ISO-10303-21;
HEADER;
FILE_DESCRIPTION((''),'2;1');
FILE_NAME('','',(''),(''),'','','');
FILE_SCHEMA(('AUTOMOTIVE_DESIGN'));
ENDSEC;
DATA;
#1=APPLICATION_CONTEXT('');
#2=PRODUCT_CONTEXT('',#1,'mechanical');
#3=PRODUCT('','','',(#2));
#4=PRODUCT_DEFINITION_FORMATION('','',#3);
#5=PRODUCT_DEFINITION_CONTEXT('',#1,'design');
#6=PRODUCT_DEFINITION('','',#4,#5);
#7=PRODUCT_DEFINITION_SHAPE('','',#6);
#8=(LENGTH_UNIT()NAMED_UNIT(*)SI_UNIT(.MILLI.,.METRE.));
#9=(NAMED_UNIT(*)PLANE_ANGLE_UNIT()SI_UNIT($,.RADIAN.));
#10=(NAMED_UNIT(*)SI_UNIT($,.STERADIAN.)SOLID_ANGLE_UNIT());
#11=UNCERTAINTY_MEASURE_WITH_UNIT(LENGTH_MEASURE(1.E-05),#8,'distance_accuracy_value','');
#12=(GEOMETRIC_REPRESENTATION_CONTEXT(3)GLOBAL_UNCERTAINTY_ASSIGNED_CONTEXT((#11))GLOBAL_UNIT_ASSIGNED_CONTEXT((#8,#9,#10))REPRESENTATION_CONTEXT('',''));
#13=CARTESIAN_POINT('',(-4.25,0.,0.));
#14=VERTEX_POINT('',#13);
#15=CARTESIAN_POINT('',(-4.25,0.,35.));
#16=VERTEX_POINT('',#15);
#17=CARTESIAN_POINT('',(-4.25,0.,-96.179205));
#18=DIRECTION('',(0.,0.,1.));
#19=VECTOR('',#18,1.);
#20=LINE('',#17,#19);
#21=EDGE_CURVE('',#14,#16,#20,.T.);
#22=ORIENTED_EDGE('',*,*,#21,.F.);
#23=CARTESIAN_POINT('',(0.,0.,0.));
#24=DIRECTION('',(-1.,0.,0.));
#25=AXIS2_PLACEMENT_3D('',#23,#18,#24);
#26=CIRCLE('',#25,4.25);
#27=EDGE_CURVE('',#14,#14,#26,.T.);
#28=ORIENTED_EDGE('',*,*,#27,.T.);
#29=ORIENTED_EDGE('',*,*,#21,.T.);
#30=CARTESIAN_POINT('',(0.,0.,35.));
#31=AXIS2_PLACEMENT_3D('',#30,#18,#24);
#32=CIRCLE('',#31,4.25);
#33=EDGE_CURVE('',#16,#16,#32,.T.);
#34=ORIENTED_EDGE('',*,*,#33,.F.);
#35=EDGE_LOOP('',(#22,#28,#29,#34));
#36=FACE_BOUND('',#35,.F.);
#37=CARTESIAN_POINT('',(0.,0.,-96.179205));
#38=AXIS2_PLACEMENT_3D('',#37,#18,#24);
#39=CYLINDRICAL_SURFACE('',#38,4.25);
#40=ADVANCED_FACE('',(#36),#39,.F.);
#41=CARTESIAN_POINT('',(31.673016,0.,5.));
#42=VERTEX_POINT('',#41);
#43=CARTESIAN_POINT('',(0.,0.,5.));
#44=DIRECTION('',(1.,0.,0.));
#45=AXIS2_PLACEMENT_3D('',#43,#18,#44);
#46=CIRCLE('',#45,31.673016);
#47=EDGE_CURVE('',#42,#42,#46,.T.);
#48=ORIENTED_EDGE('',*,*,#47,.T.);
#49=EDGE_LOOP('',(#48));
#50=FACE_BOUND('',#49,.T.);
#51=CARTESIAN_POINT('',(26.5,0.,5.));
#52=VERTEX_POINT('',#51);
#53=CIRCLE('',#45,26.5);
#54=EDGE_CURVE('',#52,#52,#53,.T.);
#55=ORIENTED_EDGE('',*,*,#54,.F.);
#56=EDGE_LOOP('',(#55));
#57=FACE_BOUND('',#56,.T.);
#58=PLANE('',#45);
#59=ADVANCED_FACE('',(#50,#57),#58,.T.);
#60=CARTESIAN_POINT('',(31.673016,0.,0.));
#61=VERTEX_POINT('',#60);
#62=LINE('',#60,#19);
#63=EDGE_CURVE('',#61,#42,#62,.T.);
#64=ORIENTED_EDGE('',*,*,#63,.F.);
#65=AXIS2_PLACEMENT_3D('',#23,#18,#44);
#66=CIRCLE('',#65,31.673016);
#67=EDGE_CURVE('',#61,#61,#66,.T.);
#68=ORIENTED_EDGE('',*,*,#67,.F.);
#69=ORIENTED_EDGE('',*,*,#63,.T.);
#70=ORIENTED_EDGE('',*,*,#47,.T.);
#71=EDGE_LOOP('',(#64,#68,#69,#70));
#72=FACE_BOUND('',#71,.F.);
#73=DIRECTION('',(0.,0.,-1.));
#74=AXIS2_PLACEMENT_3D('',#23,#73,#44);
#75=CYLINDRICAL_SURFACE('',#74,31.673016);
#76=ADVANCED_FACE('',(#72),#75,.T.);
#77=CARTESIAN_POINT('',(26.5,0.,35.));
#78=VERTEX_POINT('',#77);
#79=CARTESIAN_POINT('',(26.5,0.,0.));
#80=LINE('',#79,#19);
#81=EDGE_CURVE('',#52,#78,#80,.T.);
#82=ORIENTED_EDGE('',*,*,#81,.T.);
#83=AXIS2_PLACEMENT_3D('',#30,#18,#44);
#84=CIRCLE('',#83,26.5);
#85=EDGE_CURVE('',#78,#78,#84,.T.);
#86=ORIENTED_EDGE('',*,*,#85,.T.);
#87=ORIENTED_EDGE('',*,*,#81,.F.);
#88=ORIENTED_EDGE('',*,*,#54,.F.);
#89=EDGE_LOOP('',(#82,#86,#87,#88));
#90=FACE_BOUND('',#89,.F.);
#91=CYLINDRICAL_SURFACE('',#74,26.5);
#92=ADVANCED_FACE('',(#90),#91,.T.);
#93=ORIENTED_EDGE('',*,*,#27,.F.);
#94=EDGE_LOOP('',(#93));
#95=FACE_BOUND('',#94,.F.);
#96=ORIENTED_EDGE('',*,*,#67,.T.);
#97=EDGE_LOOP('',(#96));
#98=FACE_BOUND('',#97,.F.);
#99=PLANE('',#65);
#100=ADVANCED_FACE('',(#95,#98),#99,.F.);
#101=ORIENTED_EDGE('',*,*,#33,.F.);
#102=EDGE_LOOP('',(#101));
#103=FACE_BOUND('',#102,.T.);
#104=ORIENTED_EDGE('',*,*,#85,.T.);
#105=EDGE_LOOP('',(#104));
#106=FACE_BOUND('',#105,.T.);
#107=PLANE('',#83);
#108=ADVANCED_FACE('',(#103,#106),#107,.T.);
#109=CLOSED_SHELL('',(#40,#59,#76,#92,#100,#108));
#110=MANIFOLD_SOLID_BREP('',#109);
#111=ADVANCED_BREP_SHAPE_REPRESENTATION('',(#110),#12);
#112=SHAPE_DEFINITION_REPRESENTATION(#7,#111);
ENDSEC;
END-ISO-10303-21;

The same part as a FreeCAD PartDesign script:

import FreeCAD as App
import Part
import Sketcher
from FreeCAD import Vector
Q = App.Units.Quantity

doc = App.newDocument("Part")
params = doc.addObject("Spreadsheet::Sheet", "Params")
for row, (alias, value) in enumerate([
    ("sketch1_diameter", "53 mm"),
    ("pad1_length", "35 mm"),
    ("sketch2_diameter", "53 mm"),
    ("pad2_length", "5 mm"),
    ("sketch3_diameter", "8.5 mm"),
    ("hole_diameter", "8.5 mm"),
], start=1):
    params.set(f"A{row}", alias)
    params.set(f"B{row}", "=" + value)
    params.setAlias(f"B{row}", alias)

body = doc.addObject("PartDesign::Body", "Body")

# Sketch on XY plane
sketch1 = body.newObject("Sketcher::SketchObject", "Sketch")
sketch1.AttachmentSupport = (doc.getObject("XY_Plane"), [""])
sketch1.MapMode = "FlatFace"
sketch1.addGeometry(Part.Circle(Vector(0, 0, 0), Vector(0, 0, 1), 26), False)
sketch1.addConstraint([
    Sketcher.Constraint("Coincident", 0, 3, -1, 1),
    Sketcher.Constraint("Diameter", 0, Q("53 mm")),
])
sketch1.setExpression("Constraints[1]", "Params.sketch1_diameter")
pad1 = body.newObject("PartDesign::Pad", "Pad")
pad1.Profile = sketch1
pad1.setExpression("Length", "Params.pad1_length")

# Sketch on XY plane
sketch2 = body.newObject("Sketcher::SketchObject", "Sketch001")
sketch2.AttachmentSupport = (doc.getObject("XY_Plane"), [""])
sketch2.MapMode = "FlatFace"
sketch2.addGeometry([
    Part.Circle(Vector(0, 0, 0), Vector(0, 0, 1), 32),
    Part.Circle(Vector(0, 0, 0), Vector(0, 0, 1), 26),
], False)
sketch2.addConstraint([
    Sketcher.Constraint("Coincident", 0, 3, -1, 1),
    Sketcher.Constraint("Coincident", 1, 3, -1, 1),
    Sketcher.Constraint("Diameter", 1, Q("53 mm")),
    Sketcher.Constraint("Diameter", 0, Q("63.346032 mm")),
])
sketch2.setExpression("Constraints[2]", "Params.sketch2_diameter")
pad2 = body.newObject("PartDesign::Pad", "Pad001")
pad2.Profile = sketch2
pad2.setExpression("Length", "Params.pad2_length")

# Sketch on XY plane
sketch3 = body.newObject("Sketcher::SketchObject", "Sketch002")
sketch3.AttachmentSupport = (doc.getObject("XY_Plane"), [""])
sketch3.MapMode = "FlatFace"
sketch3.addGeometry(Part.Circle(Vector(0, 0, 0), Vector(0, 0, 1), 4.2), False)
sketch3.addConstraint([
    Sketcher.Constraint("Coincident", 0, 3, -1, 1),
    Sketcher.Constraint("Diameter", 0, Q("8.5 mm")),
])
sketch3.setExpression("Constraints[1]", "Params.sketch3_diameter")
doc.recompute()
hole = body.newObject("PartDesign::Hole", "Hole")
hole.Profile = sketch3
hole.ThreadType = "None"
hole.setExpression("Diameter", "Params.hole_diameter")
hole.DepthType = "ThroughAll"
hole.Reversed = True

doc.recompute()
